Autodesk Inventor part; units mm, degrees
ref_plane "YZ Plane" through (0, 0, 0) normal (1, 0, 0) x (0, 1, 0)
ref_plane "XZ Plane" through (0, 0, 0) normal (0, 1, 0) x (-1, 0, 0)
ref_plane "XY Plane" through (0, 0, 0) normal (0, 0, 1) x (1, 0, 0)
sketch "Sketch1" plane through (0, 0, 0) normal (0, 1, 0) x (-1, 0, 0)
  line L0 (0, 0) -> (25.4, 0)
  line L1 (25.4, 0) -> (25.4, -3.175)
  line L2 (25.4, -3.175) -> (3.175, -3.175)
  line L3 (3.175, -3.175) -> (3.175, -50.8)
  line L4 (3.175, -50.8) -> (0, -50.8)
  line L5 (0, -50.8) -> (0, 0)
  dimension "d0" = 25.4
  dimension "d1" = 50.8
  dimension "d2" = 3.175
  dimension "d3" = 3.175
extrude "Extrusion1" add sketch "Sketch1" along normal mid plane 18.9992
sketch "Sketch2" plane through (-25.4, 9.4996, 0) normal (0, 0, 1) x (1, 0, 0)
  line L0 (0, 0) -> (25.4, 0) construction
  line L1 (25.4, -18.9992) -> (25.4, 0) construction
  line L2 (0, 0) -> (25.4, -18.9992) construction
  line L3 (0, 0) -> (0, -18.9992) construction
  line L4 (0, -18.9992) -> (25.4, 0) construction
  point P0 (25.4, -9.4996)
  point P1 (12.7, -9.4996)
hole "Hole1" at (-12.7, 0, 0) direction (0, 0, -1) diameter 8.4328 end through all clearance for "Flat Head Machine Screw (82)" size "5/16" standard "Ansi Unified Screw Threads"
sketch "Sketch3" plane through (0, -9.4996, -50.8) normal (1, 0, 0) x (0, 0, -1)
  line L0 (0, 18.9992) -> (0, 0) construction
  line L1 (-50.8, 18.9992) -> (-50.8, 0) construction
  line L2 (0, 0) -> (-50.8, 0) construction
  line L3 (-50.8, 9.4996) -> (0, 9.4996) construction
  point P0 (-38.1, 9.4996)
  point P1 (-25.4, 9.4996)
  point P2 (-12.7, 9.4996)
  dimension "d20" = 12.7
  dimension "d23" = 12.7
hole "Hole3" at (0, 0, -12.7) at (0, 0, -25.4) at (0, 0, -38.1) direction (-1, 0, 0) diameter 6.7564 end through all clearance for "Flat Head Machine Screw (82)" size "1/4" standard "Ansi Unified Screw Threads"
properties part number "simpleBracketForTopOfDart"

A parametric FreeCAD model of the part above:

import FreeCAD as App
import Part
import Sketcher

V = App.Vector
Q = App.Units.Quantity

doc = App.newDocument("Part")
body = doc.addObject("PartDesign::Body", "Body")

sketch1 = body.newObject("Sketcher::SketchObject", "Sketch")
sketch1.AttachmentSupport = (doc.getObject("XZ_Plane"), [""])
sketch1.MapMode = "FlatFace"
sketch1.addGeometry([
    Part.LineSegment(V(-25.4, 0, 0), V(0, 0, 0)),
    Part.LineSegment(V(0, 0, 0), V(0, -50.8, 0)),
    Part.LineSegment(V(0, -50.8, 0), V(-3.175, -50.8, 0)),
    Part.LineSegment(V(-3.175, -50.8, 0), V(-3.175, -3.175, 0)),
    Part.LineSegment(V(-3.175, -3.175, 0), V(-25.4, -3.175, 0)),
    Part.LineSegment(V(-25.4, -3.175, 0), V(-25.4, 0, 0)),
], False)
sketch1.addConstraint([
    Sketcher.Constraint("Coincident", 0, 2, 1, 1),
    Sketcher.Constraint("Coincident", 1, 2, 2, 1),
    Sketcher.Constraint("Coincident", 2, 2, 3, 1),
    Sketcher.Constraint("Coincident", 3, 2, 4, 1),
    Sketcher.Constraint("Coincident", 4, 2, 5, 1),
    Sketcher.Constraint("Coincident", 5, 2, 0, 1),
    Sketcher.Constraint("Horizontal", 0),
    Sketcher.Constraint("Vertical", 1),
    Sketcher.Constraint("Horizontal", 2),
    Sketcher.Constraint("Vertical", 3),
    Sketcher.Constraint("Horizontal", 4),
    Sketcher.Constraint("Vertical", 5),
    Sketcher.Constraint("Coincident", 0, 2, -1, 1),
    Sketcher.Constraint("Equal", 2, 5),
    Sketcher.Constraint("DistanceX", 0, 1, 0, 2, Q("1 in")),
    Sketcher.Constraint("DistanceY", 1, 2, 1, 1, Q("2 in")),
    Sketcher.Constraint("DistanceX", 2, 2, 2, 1, Q("0.125 in")),
])
pad1 = body.newObject("PartDesign::Pad", "Pad")
pad1.Profile = sketch1
pad1.Length = Q("0.748 in")
pad1.Midplane = True

sketch2 = body.newObject("Sketcher::SketchObject", "Sketch001")
sketch2.AttachmentSupport = (doc.getObject("XY_Plane"), [""])
sketch2.MapMode = "FlatFace"
sketch2.addGeometry(Part.Circle(V(-12.7, 0, 0), V(0, 0, 1), 4.2164), False)
sketch2.addConstraint([
    Sketcher.Constraint("PointOnObject", 0, 3, -1),
    Sketcher.Constraint("Diameter", 0, Q("0.332 in")),
    Sketcher.Constraint("DistanceX", 0, 3, -1, 1, Q("0.5 in")),
])
doc.recompute()
hole = body.newObject("PartDesign::Hole", "Hole")
hole.Profile = sketch2
hole.ThreadType = "None"
hole.Diameter = Q("0.332 in")
hole.DepthType = "ThroughAll"

sketch3 = body.newObject("Sketcher::SketchObject", "Sketch002")
sketch3.AttachmentSupport = (doc.getObject("YZ_Plane"), [""])
sketch3.MapMode = "FlatFace"
sketch3.addGeometry([
    Part.Circle(V(0, -12.7, 0), V(0, 0, 1), 3.3782),
    Part.Circle(V(0, -25.4, 0), V(0, 0, 1), 3.3782),
    Part.Circle(V(0, -38.1, 0), V(0, 0, 1), 3.3782),
], False)
sketch3.addConstraint([
    Sketcher.Constraint("Equal", 0, 1),
    Sketcher.Constraint("Equal", 1, 2),
    Sketcher.Constraint("PointOnObject", 0, 3, -2),
    Sketcher.Constraint("PointOnObject", 1, 3, -2),
    Sketcher.Constraint("PointOnObject", 2, 3, -2),
    Sketcher.Constraint("Diameter", 0, Q("0.266 in")),
    Sketcher.Constraint("DistanceY", 1, 3, -1, 1, Q("1 in")),
    Sketcher.Constraint("DistanceY", 2, 3, 0, 3, Q("1 in")),
    Sketcher.Constraint("DistanceY", 0, 3, -1, 1, Q("0.5 in")),
])
doc.recompute()
hole2 = body.newObject("PartDesign::Hole", "Hole001")
hole2.Profile = sketch3
hole2.ThreadType = "None"
hole2.Diameter = Q("0.266 in")
hole2.DepthType = "ThroughAll"

doc.recompute()
